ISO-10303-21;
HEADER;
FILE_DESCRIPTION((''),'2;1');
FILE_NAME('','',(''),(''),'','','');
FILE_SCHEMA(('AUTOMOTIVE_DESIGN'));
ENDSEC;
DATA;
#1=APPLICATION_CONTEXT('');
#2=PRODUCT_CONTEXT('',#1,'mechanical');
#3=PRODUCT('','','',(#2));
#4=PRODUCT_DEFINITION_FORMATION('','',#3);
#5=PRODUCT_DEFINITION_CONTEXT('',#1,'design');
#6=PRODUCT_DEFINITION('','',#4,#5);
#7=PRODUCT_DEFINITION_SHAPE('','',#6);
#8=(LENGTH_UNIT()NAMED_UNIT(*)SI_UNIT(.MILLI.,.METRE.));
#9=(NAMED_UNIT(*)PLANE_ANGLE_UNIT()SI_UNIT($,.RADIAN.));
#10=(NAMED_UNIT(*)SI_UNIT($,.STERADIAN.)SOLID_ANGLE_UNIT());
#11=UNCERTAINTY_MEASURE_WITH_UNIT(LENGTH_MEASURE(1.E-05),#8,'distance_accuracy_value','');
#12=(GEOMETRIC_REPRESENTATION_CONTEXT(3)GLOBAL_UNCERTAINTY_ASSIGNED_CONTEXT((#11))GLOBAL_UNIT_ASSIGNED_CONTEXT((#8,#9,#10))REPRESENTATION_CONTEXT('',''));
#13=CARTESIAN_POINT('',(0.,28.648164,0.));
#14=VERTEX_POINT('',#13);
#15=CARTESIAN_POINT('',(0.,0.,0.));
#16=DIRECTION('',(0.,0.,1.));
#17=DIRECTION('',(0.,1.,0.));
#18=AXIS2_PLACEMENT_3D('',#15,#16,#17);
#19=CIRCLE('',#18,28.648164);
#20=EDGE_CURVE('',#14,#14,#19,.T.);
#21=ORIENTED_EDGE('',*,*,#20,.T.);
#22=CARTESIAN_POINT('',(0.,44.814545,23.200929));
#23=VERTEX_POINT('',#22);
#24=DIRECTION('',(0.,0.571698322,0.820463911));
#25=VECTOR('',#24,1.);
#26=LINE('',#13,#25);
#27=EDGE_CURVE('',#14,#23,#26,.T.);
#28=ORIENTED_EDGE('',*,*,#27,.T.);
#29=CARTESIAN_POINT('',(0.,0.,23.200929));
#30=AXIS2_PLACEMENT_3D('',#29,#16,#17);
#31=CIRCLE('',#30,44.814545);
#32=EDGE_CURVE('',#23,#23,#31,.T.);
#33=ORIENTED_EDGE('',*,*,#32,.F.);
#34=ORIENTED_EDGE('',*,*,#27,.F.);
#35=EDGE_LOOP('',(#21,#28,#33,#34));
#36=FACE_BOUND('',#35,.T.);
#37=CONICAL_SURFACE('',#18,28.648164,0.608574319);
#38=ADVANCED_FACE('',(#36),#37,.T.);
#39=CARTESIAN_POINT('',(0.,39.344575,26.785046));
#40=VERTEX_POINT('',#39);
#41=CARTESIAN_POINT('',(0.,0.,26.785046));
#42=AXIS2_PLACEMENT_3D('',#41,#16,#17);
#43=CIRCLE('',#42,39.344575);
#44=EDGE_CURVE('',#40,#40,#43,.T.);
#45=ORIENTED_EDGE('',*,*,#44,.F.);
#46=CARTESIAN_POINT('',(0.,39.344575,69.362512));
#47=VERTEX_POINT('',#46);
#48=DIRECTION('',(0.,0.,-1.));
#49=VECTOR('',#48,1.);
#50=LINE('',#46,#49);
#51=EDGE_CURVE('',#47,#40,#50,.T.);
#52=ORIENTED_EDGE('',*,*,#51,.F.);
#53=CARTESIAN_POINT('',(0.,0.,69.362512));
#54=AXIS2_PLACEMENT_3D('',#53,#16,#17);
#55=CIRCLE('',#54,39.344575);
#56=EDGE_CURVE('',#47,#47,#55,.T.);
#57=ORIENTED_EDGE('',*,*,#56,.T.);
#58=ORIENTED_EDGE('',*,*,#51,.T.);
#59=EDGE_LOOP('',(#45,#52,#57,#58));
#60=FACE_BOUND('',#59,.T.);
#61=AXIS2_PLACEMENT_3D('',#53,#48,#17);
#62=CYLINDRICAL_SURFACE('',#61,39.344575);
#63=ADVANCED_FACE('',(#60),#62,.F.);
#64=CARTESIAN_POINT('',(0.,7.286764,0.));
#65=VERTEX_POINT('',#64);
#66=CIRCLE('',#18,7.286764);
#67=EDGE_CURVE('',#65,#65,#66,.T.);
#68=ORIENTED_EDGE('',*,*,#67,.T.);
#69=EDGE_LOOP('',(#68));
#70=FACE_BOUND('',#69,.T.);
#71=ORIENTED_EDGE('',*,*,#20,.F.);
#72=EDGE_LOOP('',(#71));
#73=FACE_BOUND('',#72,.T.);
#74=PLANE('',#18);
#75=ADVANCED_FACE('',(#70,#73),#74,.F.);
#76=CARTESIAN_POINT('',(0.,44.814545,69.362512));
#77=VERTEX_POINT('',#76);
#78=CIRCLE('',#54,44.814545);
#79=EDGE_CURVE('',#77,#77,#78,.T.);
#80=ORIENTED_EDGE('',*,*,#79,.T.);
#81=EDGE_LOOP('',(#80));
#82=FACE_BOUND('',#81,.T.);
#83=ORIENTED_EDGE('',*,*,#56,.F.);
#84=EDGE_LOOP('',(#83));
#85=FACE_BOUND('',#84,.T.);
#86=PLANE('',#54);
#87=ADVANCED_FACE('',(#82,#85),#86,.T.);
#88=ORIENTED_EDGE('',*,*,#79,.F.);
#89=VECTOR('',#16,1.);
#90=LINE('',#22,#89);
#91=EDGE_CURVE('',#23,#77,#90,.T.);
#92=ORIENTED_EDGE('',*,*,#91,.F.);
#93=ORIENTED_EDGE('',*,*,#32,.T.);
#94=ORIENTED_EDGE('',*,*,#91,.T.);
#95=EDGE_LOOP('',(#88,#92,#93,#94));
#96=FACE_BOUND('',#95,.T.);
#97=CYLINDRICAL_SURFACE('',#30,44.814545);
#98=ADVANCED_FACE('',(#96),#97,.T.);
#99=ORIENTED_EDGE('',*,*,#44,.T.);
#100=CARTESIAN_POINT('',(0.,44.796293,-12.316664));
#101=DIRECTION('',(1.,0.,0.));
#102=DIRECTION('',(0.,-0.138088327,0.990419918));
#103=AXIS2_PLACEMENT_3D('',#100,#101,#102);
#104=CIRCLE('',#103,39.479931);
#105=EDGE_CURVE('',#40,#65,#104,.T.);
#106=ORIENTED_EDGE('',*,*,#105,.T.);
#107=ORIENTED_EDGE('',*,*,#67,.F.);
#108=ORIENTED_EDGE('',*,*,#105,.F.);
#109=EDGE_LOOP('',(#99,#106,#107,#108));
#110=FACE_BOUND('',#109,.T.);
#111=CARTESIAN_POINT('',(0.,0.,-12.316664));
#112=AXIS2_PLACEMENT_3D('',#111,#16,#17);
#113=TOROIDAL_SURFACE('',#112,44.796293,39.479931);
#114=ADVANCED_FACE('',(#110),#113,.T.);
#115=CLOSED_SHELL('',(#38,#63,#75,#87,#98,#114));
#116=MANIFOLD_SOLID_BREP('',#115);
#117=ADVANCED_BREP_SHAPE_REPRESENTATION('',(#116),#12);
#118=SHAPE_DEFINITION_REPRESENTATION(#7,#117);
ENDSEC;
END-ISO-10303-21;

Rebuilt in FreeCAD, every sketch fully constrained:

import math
import FreeCAD as App
import Part
import Sketcher
from FreeCAD import Vector
Q = App.Units.Quantity

doc = App.newDocument("Part")
body = doc.addObject("PartDesign::Body", "Body")

sketch1 = body.newObject("Sketcher::SketchObject", "Sketch")
sketch1.AttachmentSupport = (doc.getObject("YZ_Plane"), [""])
sketch1.MapMode = "FlatFace"
sketch1.addGeometry(Part.LineSegment(Vector(39, 69, 0), Vector(39, 27, 0)), False)
sketch1.addGeometry(Part.ArcOfCircle(Part.Circle(Vector(45, -12, 0), Vector(0, 0, 1), 39), math.radians(98), math.radians(162)), False)
sketch1.addGeometry(Part.LineSegment(Vector(7, 0, 0), Vector(29, 0, 0)), False)
sketch1.addGeometry(Part.LineSegment(Vector(29, 0, 0), Vector(45, 23, 0)), False)
sketch1.addGeometry(Part.LineSegment(Vector(45, 23, 0), Vector(45, 69, 0)), False)
sketch1.addGeometry(Part.LineSegment(Vector(45, 69, 0), Vector(39, 69, 0)), False)
sketch1.addConstraint(Sketcher.Constraint("Coincident", 0, 2, 1, 1))
sketch1.addConstraint(Sketcher.Constraint("Coincident", 1, 2, 2, 1))
sketch1.addConstraint(Sketcher.Constraint("Coincident", 2, 2, 3, 1))
sketch1.addConstraint(Sketcher.Constraint("Coincident", 3, 2, 4, 1))
sketch1.addConstraint(Sketcher.Constraint("Coincident", 4, 2, 5, 1))
sketch1.addConstraint(Sketcher.Constraint("Coincident", 5, 2, 0, 1))
sketch1.addConstraint(Sketcher.Constraint("Vertical", 0))
sketch1.addConstraint(Sketcher.Constraint("Horizontal", 2))
sketch1.addConstraint(Sketcher.Constraint("Vertical", 4))
sketch1.addConstraint(Sketcher.Constraint("Horizontal", 5))
sketch1.addConstraint(Sketcher.Constraint("PointOnObject", 1, 2, -1))
sketch1.addConstraint(Sketcher.Constraint("DistanceX", 2, 1, 2, 2, Q("0.841 in")))
sketch1.addConstraint(Sketcher.Constraint("Radius", 1, Q("39.479931 mm")))
sketch1.addConstraint(Sketcher.Constraint("Distance", 3, Q("1.1132999 in")))
sketch1.addConstraint(Sketcher.Constraint("DistanceX", 5, 2, 5, 1, Q("5.46997 mm")))
sketch1.addConstraint(Sketcher.Constraint("DistanceY", 0, 2, 0, 1, Q("42.577466 mm")))
sketch1.addConstraint(Sketcher.Constraint("DistanceY", 4, 1, 4, 2, Q("46.161583 mm")))
sketch1.addConstraint(Sketcher.Constraint("DistanceY", -1, 1, 3, 2, Q("23.200929 mm")))
sketch1.addConstraint(Sketcher.Constraint("DistanceX", -1, 1, 1, 3, Q("44.796293 mm")))
revolution = body.newObject("PartDesign::Revolution", "Revolution")
revolution.Profile = sketch1
revolution.ReferenceAxis = (sketch1, ["V_Axis"])
revolution.Angle = 360

doc.recompute()
